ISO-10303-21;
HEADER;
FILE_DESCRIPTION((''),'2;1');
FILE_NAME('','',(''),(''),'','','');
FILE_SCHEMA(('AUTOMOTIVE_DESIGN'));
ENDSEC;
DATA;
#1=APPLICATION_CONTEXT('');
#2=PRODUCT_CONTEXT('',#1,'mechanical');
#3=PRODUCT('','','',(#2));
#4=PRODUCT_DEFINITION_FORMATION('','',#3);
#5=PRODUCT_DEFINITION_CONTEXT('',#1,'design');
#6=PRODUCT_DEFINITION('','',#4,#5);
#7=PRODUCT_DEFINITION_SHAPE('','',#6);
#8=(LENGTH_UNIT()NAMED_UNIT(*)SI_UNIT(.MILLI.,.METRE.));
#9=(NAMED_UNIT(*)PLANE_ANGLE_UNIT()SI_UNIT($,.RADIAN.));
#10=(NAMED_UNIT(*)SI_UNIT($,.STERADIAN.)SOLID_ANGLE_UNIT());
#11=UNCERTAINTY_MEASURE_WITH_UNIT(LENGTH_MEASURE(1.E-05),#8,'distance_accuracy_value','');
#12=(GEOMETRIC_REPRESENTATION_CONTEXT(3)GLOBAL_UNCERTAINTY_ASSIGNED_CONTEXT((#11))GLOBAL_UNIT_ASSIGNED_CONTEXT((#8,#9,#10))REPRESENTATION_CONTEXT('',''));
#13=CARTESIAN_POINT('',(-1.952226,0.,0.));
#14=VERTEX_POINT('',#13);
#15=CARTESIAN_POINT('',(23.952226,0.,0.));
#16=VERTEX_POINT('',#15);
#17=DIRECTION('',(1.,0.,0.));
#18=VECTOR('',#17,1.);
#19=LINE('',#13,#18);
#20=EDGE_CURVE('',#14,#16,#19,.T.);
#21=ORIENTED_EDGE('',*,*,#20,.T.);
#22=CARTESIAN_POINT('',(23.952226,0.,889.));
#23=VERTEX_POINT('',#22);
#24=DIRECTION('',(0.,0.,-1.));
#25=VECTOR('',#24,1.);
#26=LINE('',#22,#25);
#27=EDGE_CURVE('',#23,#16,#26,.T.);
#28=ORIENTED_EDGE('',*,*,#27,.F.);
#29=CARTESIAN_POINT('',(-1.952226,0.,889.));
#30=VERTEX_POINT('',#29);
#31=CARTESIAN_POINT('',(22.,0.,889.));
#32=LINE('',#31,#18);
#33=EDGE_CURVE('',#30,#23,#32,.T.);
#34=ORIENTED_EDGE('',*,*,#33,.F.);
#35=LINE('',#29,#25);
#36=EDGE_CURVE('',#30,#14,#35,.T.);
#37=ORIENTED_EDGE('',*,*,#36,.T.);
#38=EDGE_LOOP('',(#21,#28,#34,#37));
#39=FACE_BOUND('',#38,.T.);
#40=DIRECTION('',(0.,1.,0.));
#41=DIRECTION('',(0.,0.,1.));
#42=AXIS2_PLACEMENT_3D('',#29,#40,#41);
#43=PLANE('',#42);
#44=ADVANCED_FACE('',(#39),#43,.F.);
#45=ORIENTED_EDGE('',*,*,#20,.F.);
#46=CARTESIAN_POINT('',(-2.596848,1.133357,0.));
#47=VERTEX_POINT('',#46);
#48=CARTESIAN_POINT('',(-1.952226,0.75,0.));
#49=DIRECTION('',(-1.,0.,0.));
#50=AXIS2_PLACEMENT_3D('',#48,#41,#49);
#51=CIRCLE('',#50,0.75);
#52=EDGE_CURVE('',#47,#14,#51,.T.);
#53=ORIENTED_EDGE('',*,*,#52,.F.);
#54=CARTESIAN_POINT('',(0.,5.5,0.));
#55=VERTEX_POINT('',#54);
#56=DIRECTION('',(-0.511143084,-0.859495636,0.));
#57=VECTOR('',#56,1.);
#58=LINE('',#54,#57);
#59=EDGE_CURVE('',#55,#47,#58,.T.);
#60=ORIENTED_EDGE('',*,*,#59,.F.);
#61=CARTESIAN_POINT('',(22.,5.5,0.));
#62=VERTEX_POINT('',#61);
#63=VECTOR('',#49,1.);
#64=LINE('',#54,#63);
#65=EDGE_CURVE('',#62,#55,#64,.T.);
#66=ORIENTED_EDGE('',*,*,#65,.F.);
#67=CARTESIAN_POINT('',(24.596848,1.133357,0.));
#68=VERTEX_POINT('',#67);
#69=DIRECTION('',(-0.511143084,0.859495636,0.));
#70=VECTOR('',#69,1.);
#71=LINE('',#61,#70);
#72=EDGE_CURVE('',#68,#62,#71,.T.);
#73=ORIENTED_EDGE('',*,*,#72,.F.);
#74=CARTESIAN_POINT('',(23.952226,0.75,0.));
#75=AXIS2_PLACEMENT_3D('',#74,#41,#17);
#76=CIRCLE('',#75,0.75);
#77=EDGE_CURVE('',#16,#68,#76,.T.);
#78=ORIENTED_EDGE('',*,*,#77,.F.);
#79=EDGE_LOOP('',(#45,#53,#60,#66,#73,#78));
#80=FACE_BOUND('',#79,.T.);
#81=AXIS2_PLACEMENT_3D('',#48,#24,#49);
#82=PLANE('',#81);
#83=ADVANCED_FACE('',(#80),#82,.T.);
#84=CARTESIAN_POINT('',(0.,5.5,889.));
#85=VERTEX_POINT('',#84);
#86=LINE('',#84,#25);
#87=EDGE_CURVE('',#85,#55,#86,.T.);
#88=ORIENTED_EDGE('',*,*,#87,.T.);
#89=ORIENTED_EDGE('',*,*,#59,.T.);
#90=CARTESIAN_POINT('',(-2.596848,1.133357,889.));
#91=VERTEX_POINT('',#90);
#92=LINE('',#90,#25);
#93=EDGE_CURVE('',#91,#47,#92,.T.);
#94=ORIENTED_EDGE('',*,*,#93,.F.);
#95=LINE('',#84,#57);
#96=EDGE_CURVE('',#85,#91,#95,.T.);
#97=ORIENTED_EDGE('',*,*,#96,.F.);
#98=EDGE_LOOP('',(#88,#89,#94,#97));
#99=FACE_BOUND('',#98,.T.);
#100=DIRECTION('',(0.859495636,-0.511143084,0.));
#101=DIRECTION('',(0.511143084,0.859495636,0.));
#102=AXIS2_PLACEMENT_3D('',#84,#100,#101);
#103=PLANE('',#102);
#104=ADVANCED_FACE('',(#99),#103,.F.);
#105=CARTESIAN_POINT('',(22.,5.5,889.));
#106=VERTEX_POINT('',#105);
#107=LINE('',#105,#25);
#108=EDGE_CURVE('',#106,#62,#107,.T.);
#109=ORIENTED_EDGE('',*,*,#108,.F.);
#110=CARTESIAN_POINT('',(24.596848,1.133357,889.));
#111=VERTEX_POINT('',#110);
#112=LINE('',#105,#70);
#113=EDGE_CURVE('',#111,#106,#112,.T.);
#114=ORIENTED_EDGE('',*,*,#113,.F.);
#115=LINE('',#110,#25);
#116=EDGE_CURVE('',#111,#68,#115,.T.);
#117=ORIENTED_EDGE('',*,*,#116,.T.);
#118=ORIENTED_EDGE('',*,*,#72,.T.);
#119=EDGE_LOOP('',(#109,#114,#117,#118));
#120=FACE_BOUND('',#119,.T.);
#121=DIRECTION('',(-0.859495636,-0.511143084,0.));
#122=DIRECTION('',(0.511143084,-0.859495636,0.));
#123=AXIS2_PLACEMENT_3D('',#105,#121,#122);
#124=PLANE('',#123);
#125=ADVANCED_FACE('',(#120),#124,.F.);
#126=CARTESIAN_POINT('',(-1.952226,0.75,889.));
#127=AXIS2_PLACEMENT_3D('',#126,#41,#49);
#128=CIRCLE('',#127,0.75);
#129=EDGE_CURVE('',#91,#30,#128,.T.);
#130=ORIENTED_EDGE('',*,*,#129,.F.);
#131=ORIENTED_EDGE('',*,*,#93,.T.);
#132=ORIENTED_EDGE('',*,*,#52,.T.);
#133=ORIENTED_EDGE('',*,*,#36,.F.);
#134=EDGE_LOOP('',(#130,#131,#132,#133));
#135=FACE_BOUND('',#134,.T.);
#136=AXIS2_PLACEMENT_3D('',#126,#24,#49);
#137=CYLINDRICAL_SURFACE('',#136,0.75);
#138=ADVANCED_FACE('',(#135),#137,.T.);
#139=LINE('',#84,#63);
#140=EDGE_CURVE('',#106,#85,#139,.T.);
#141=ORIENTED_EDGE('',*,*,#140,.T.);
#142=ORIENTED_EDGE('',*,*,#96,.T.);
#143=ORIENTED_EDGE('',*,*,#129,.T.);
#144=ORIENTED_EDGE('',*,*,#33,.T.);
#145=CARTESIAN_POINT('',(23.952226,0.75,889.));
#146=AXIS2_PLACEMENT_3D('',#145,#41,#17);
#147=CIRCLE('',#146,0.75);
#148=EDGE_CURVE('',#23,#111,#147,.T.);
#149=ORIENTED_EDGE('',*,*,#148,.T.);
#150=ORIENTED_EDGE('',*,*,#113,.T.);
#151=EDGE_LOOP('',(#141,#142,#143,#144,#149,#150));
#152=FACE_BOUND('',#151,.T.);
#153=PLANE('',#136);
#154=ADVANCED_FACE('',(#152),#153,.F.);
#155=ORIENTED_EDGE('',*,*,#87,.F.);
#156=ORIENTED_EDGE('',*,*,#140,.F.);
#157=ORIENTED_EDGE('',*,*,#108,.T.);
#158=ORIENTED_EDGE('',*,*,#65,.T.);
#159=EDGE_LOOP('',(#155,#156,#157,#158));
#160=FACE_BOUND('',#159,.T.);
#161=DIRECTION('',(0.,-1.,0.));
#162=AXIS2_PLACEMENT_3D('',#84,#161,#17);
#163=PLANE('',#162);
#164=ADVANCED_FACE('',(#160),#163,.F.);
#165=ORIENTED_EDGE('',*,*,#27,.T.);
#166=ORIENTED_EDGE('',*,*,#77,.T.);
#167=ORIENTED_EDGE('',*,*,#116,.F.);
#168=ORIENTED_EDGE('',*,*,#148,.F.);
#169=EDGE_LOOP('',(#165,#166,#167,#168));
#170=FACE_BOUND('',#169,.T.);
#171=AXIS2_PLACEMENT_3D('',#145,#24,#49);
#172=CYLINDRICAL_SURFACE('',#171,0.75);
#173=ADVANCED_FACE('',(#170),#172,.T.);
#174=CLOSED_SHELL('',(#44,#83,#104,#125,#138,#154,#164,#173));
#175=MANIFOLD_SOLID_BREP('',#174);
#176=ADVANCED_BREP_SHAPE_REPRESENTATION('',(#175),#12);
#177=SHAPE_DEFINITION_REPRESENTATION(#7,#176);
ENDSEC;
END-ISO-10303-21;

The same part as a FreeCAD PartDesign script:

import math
import FreeCAD as App
import Part
import Sketcher

V = App.Vector
Q = App.Units.Quantity

doc = App.newDocument("Part")
body = doc.addObject("PartDesign::Body", "Body")

# Sketch on XY plane
sketch1 = body.newObject("Sketcher::SketchObject", "Sketch")
sketch1.AttachmentSupport = (doc.getObject("XY_Plane"), [""])
sketch1.MapMode = "FlatFace"
sketch1.addGeometry([
    Part.LineSegment(V(0, 5.5, 0), V(-2.6, 1.1, 0)),  # 0
    Part.ArcOfCircle(Part.Circle(V(-2, 0.8, 0), V(0, 0, 1), 0.8), math.radians(149), math.radians(270)),  # 1
    Part.LineSegment(V(-2, 0, 0), V(24, 0, 0)),  # 2
    Part.ArcOfCircle(Part.Circle(V(24, 0.8, 0), V(0, 0, 1), 0.8), math.radians(-90), math.radians(31)),  # 3
    Part.LineSegment(V(24.6, 1.1, 0), V(22, 5.5, 0)),  # 4
    Part.LineSegment(V(22, 5.5, 0), V(0, 5.5, 0)),  # 5
], False)
sketch1.addConstraint([
    Sketcher.Constraint("Tangent", 0, 2, 1, 1),
    Sketcher.Constraint("Tangent", 1, 2, 2, 1),
    Sketcher.Constraint("Tangent", 2, 2, 3, 1),
    Sketcher.Constraint("Tangent", 3, 2, 4, 1),
    Sketcher.Constraint("Coincident", 4, 2, 5, 1),
    Sketcher.Constraint("Coincident", 5, 2, 0, 1),
    Sketcher.Constraint("Horizontal", 2),
    Sketcher.Constraint("Horizontal", 5),
    Sketcher.Constraint("Equal", 1, 3),
    Sketcher.Constraint("PointOnObject", 1, 2, -1),
    Sketcher.Constraint("PointOnObject", 5, 2, -2),
    Sketcher.Constraint("Horizontal", 0, 2, 3, 2),
    Sketcher.Constraint("DistanceX", 5, 2, 5, 1, Q("22 mm")),
    Sketcher.Constraint("Radius", 1, Q("0.75 mm")),
    Sketcher.Constraint("DistanceY", -1, 1, 4, 2, Q("5.5 mm")),
    Sketcher.Constraint("Angle", 0, Q("-120.74 deg")),
])
pad1 = body.newObject("PartDesign::Pad", "Pad")
pad1.Profile = sketch1
pad1.Length = 889

doc.recompute()
